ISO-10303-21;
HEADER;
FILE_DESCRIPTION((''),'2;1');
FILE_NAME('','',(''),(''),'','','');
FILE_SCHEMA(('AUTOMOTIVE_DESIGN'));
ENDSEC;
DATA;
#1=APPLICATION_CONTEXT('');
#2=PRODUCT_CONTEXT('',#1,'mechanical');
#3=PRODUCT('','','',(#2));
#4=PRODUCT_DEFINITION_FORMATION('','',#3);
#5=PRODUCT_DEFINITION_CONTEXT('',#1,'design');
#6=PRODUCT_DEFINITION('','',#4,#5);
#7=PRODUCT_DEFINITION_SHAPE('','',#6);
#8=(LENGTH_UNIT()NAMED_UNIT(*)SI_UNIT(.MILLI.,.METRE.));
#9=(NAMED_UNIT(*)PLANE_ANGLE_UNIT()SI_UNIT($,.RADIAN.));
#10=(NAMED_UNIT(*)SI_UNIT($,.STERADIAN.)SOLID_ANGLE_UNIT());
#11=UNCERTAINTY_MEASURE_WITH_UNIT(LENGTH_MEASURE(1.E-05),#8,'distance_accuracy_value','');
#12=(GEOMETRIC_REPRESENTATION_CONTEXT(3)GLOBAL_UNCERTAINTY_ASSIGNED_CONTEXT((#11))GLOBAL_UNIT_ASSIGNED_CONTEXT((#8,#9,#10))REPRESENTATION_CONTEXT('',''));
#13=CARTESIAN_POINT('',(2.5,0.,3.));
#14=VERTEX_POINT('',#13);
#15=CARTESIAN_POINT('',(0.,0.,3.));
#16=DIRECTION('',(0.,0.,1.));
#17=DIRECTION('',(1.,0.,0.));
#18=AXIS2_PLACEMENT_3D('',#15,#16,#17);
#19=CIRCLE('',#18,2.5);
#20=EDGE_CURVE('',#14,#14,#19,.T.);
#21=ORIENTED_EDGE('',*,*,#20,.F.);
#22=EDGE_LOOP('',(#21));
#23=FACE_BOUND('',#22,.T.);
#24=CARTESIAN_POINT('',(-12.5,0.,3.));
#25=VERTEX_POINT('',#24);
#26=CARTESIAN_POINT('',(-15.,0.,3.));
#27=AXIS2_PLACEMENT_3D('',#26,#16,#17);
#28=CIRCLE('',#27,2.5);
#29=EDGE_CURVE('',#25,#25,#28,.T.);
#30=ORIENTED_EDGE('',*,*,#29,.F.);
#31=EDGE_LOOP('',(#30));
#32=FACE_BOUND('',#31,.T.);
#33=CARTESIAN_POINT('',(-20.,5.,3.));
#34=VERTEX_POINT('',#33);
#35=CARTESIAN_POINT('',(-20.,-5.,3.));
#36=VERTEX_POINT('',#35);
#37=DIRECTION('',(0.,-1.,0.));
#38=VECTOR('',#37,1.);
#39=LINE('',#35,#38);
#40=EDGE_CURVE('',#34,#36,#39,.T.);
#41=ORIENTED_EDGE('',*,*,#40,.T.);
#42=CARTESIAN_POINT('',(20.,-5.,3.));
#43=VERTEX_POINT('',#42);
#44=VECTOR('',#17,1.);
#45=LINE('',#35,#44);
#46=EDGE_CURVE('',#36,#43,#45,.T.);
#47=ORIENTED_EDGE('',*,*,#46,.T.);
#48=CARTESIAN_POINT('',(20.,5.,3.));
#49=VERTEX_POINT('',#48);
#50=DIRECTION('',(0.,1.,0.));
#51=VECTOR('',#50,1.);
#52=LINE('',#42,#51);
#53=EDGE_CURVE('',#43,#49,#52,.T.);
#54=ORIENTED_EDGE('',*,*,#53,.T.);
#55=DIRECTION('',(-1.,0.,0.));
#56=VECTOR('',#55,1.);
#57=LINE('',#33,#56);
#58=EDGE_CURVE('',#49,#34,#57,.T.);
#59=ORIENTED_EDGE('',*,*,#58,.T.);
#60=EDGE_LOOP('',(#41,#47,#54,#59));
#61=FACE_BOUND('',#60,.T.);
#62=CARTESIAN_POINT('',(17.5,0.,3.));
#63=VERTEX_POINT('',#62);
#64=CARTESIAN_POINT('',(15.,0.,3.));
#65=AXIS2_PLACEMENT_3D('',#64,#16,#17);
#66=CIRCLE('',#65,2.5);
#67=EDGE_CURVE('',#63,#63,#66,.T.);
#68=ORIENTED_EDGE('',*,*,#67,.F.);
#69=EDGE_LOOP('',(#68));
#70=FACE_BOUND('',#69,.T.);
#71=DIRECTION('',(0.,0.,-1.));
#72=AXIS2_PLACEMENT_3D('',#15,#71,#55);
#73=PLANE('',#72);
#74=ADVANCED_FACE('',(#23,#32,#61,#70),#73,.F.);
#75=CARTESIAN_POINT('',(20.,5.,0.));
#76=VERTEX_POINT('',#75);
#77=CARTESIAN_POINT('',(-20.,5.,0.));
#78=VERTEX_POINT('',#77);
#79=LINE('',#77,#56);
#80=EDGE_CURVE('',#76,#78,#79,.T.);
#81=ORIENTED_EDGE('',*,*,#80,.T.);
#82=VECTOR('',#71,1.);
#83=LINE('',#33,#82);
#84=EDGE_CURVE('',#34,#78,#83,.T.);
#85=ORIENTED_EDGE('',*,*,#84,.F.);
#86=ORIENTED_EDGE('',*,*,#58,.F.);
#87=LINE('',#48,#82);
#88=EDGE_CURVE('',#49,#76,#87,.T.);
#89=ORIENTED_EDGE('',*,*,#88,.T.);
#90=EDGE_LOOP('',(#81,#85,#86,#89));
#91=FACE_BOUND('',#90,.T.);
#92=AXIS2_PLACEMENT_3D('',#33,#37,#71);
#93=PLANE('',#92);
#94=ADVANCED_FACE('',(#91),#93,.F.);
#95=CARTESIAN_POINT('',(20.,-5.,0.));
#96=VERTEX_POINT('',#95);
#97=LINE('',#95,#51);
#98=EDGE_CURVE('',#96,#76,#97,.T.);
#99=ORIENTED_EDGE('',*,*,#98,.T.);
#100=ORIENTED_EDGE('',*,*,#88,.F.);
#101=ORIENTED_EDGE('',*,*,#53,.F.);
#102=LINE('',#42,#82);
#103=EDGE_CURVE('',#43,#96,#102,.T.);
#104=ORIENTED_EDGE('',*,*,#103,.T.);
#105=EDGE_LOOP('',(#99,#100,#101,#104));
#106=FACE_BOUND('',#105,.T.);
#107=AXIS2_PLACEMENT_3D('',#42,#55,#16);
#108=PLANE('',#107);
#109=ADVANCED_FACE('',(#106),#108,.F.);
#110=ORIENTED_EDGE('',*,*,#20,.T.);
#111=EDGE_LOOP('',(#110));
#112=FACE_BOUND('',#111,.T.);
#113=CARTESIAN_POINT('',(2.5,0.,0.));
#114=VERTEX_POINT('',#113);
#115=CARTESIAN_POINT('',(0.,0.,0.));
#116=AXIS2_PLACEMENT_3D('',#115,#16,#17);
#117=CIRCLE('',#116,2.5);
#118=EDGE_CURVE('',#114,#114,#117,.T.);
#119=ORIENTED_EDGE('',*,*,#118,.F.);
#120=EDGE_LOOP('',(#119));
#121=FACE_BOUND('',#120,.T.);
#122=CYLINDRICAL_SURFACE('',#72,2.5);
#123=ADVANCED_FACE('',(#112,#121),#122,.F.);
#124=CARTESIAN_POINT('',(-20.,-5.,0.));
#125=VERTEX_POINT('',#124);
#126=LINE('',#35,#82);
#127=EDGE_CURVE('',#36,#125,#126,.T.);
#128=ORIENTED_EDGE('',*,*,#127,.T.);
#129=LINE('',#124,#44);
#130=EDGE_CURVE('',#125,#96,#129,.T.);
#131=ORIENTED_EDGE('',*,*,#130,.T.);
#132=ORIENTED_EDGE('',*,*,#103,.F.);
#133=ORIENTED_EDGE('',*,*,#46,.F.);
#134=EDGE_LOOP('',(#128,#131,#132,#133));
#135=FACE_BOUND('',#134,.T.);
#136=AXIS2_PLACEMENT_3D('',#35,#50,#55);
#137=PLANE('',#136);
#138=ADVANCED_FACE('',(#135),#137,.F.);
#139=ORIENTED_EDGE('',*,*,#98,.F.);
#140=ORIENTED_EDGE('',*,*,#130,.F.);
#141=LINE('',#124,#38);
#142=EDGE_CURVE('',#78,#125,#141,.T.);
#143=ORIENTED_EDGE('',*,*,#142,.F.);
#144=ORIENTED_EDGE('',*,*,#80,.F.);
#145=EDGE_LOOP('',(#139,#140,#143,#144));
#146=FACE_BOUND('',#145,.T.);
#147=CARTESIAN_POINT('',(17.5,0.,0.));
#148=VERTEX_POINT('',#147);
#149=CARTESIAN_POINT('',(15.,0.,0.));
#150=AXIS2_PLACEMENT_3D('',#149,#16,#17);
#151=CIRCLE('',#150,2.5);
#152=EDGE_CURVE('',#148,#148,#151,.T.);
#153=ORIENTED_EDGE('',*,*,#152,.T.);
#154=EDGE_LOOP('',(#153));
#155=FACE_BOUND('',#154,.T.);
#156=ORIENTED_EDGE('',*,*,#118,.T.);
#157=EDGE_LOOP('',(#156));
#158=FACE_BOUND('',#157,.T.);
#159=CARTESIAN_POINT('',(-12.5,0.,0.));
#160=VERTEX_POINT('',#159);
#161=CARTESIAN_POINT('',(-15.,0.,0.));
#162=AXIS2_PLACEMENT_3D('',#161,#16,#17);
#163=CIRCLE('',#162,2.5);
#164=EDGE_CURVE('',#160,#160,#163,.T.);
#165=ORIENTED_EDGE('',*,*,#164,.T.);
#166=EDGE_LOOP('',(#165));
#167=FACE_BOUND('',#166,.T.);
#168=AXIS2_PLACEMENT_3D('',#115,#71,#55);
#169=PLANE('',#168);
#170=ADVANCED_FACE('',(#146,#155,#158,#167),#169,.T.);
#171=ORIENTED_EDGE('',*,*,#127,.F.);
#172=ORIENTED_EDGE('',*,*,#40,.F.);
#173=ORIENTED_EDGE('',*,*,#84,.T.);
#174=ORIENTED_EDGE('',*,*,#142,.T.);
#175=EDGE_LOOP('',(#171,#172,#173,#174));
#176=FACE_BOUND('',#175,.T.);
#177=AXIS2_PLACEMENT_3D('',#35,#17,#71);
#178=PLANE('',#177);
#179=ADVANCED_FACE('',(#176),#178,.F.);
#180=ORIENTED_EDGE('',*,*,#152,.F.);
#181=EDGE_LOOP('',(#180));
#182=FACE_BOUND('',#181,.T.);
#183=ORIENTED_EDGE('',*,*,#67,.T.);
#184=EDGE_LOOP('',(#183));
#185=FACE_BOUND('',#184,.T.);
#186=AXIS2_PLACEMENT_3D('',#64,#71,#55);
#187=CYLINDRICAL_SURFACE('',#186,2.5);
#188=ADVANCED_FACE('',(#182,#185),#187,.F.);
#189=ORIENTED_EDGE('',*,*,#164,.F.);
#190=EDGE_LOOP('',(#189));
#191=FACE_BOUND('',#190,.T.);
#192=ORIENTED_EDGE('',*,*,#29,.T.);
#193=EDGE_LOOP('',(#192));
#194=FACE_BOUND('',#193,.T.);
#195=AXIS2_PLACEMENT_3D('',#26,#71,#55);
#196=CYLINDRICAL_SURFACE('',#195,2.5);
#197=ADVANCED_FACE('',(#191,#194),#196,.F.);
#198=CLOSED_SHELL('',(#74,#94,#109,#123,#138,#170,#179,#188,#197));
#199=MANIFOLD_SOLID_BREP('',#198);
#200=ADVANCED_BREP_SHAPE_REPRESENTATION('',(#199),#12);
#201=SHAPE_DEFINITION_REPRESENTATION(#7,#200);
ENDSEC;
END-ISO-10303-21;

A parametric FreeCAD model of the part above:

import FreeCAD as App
import Part
import Sketcher

V = App.Vector
Q = App.Units.Quantity


def add_polygon(sketch, points):
    """Adds a closed chain of lines whose ends are joined by coincident constraints."""
    first, n = sketch.GeometryCount, len(points)
    for a, b in zip(points, points[1:] + points[:1]):
        sketch.addGeometry(Part.LineSegment(App.Vector(*a, 0), App.Vector(*b, 0)), False)
    for i in range(n):
        sketch.addConstraint(Sketcher.Constraint("Coincident", first + i, 2, first + (i + 1) % n, 1))

doc = App.newDocument("Part")
params = doc.addObject("Spreadsheet::Sheet", "Params")
for row, (alias, value) in enumerate([
    ("sketch1_diameter", "5 mm"),
    ("sketch1_width", "40 mm"),
    ("sketch1_height", "10 mm"),
    ("pad1_length", "3 mm"),
], start=1):
    params.set(f"A{row}", alias)
    params.set(f"B{row}", "=" + value)
    params.setAlias(f"B{row}", alias)

body = doc.addObject("PartDesign::Body", "Body")

# Sketch on XY plane
sketch1 = body.newObject("Sketcher::SketchObject", "Sketch")
sketch1.AttachmentSupport = (doc.getObject("XY_Plane"), [""])
sketch1.MapMode = "FlatFace"
add_polygon(sketch1, [(-20, 5), (-20, -5), (20, -5), (20, 5)])  # lines 0-3
sketch1.addGeometry(Part.Circle(V(-15, 0, 0), V(0, 0, 1), 2.5), False)  # 4
sketch1.addGeometry(Part.Circle(V(0, 0, 0), V(0, 0, 1), 2.5), False)  # 5
sketch1.addGeometry(Part.Circle(V(15, 0, 0), V(0, 0, 1), 2.5), False)  # 6
sketch1.addConstraint(Sketcher.Constraint("Vertical", 0))
sketch1.addConstraint(Sketcher.Constraint("Horizontal", 1))
sketch1.addConstraint(Sketcher.Constraint("Vertical", 2))
sketch1.addConstraint(Sketcher.Constraint("Horizontal", 3))
sketch1.addConstraint(Sketcher.Constraint("Coincident", 5, 3, -1, 1))
sketch1.addConstraint(Sketcher.Constraint("Equal", 4, 5))
sketch1.addConstraint(Sketcher.Constraint("Equal", 5, 6))
sketch1.addConstraint(Sketcher.Constraint("Symmetric", 4, 3, 6, 3, -1, 1))
sketch1.addConstraint(Sketcher.Constraint("Symmetric", 0, 2, 2, 2, -1, 1))
sketch1.addConstraint(Sketcher.Constraint("PointOnObject", 4, 3, -1))
sketch1.addConstraint(Sketcher.Constraint("Diameter", 4, Q("5 mm")))
sketch1.addConstraint(Sketcher.Constraint("DistanceX", 1, 1, 1, 2, Q("40 mm")))
sketch1.addConstraint(Sketcher.Constraint("DistanceY", 0, 2, 0, 1, Q("10 mm")))
sketch1.addConstraint(Sketcher.Constraint("DistanceX", 4, 3, -1, 1, Q("15 mm")))
sketch1.setExpression("Constraints[14]", "Params.sketch1_diameter")
sketch1.setExpression("Constraints[15]", "Params.sketch1_width")
sketch1.setExpression("Constraints[16]", "Params.sketch1_height")
pad1 = body.newObject("PartDesign::Pad", "Pad")
pad1.Profile = sketch1
pad1.setExpression("Length", "Params.pad1_length")

doc.recompute()
